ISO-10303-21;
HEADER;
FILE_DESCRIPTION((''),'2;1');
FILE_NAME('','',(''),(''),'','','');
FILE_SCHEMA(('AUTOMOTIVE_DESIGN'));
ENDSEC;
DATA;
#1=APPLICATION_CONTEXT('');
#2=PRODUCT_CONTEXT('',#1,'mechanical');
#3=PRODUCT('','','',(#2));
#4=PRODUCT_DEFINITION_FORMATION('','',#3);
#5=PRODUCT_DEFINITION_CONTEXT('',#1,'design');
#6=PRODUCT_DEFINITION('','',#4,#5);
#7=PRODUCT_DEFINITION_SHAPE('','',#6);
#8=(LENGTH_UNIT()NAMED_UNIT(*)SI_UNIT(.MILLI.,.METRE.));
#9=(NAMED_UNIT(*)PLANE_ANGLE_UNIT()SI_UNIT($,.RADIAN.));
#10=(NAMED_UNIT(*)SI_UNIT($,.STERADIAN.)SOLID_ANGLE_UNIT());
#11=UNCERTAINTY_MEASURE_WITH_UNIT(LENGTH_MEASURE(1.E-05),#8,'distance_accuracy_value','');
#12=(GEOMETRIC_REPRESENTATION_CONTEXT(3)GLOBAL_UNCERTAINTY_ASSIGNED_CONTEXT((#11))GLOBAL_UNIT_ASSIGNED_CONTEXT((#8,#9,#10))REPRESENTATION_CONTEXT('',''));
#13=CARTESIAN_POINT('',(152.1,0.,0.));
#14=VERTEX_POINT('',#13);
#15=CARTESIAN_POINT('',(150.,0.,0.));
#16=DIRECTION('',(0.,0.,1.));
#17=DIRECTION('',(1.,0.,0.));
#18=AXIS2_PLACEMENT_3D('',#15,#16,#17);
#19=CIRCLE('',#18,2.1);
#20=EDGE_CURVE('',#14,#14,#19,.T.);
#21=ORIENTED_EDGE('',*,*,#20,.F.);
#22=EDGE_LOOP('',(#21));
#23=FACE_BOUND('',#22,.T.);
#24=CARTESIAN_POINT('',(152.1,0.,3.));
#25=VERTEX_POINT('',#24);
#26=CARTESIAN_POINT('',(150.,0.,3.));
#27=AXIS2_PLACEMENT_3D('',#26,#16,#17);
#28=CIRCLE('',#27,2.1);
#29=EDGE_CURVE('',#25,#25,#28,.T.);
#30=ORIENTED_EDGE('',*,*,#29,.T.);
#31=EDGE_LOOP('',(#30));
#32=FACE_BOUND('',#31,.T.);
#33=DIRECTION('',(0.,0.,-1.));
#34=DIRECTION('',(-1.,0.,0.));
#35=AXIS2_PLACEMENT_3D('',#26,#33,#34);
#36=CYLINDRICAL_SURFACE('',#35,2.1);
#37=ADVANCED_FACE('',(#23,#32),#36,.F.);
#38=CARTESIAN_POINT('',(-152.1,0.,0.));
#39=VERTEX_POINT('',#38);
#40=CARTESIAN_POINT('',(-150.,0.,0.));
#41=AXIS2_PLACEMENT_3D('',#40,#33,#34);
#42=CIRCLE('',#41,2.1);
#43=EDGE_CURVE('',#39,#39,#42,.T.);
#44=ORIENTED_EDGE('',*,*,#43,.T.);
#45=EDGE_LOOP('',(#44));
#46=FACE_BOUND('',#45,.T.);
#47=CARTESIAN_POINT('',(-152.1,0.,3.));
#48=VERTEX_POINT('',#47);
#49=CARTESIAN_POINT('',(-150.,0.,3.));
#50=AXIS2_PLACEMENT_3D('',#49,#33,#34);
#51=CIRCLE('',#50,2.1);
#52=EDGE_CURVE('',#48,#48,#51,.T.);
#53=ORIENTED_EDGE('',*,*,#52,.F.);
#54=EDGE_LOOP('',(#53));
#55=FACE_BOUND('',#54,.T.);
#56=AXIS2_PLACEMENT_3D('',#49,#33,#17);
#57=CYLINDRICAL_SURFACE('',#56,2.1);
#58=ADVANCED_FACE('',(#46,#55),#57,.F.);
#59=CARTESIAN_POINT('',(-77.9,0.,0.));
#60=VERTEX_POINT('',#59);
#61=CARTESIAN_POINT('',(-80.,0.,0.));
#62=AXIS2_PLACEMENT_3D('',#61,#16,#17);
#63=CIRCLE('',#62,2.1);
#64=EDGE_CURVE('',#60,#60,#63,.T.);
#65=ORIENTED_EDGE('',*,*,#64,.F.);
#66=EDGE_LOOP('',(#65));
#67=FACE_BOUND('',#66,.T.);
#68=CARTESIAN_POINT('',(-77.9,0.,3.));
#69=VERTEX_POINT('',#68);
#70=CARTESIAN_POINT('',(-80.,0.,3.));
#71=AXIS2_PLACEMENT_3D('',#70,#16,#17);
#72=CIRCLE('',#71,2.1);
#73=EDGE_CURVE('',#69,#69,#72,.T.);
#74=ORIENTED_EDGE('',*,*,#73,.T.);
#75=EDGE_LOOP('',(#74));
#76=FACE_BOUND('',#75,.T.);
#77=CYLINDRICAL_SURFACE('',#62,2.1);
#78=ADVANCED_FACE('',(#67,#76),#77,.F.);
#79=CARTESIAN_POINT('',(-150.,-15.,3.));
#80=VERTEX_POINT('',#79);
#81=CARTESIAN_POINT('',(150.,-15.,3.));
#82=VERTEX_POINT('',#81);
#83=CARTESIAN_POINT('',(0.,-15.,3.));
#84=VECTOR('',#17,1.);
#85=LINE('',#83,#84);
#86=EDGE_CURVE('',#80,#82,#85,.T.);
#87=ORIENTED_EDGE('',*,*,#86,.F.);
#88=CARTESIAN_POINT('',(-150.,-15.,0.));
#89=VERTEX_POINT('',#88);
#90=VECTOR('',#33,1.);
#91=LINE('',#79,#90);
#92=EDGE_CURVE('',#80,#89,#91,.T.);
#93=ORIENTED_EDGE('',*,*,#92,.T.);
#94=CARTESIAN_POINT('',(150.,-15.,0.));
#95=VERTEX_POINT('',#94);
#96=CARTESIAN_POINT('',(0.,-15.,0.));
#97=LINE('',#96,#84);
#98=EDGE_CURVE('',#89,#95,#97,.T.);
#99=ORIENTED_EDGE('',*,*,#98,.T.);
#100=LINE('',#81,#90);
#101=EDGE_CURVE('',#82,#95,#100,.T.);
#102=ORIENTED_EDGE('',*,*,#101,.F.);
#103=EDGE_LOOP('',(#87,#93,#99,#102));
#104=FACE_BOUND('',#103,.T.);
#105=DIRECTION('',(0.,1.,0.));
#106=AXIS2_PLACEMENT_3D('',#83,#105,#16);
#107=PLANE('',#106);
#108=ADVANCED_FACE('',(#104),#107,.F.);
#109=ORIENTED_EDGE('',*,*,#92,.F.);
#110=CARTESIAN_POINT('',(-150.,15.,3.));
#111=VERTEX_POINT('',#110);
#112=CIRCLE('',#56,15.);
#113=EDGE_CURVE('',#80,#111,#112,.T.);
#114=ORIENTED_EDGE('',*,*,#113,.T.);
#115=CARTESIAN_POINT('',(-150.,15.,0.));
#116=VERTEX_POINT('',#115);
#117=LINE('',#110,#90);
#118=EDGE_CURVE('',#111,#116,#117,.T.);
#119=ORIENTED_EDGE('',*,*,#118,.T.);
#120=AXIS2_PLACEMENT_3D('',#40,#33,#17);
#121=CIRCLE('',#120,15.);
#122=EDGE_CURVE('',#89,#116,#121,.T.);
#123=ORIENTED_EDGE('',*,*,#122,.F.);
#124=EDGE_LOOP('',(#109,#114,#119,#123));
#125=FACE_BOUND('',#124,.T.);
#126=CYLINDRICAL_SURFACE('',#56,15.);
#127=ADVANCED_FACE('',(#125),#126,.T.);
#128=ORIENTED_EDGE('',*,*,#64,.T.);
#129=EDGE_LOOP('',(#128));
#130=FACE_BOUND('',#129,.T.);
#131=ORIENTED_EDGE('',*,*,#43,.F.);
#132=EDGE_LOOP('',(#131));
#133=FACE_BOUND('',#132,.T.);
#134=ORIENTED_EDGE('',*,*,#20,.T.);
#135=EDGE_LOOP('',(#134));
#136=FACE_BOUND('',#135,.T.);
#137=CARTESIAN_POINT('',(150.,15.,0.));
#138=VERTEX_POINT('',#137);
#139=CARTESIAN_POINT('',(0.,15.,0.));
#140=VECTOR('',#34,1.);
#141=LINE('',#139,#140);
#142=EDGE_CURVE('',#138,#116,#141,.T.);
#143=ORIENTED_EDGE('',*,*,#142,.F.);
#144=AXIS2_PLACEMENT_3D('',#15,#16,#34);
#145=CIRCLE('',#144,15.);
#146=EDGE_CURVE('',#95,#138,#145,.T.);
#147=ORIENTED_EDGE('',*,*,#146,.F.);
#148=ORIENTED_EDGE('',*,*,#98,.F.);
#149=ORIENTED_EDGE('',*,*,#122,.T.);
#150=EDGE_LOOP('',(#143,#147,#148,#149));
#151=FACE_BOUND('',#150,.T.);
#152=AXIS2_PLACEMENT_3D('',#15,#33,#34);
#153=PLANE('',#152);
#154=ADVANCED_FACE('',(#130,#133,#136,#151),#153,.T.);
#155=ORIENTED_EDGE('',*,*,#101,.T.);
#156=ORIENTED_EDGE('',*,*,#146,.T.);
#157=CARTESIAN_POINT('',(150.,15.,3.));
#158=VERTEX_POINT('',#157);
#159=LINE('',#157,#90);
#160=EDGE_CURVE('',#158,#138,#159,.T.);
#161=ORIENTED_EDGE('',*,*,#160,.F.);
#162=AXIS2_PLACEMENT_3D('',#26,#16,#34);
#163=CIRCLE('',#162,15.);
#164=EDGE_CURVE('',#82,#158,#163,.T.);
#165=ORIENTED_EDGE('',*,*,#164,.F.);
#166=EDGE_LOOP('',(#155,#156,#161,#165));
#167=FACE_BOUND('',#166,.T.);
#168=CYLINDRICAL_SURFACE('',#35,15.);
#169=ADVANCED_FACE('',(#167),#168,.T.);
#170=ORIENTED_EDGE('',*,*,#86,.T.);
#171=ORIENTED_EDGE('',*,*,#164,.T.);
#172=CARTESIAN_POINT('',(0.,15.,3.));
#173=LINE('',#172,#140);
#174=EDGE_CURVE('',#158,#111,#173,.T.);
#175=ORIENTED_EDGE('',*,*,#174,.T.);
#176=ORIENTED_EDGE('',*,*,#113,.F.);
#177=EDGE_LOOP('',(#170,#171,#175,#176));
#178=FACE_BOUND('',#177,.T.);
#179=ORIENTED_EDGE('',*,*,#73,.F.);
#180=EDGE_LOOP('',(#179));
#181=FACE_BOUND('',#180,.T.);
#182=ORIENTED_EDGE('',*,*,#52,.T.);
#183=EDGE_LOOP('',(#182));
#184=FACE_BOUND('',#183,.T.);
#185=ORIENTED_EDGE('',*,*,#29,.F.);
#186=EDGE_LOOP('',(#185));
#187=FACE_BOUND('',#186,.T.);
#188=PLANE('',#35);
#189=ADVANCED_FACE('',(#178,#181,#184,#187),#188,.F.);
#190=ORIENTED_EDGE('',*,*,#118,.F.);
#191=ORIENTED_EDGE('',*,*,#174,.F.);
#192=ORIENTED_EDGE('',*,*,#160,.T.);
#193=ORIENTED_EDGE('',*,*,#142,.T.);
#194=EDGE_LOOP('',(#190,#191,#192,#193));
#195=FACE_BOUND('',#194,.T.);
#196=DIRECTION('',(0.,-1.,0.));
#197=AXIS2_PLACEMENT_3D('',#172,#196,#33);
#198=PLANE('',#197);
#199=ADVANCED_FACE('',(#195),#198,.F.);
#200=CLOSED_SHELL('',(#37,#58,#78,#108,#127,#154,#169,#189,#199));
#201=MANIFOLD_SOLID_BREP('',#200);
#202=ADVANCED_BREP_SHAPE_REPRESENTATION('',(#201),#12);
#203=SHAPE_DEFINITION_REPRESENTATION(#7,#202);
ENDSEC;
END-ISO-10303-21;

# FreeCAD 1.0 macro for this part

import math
import FreeCAD as App
import Part
import Sketcher

doc = App.newDocument("Part")
params = doc.addObject("Spreadsheet::Sheet", "Params")
for row, (alias, value) in enumerate([
    ("sketch1_radius", "15 mm"),
    ("sketch1_diameter", "4.2 mm"),
    ("sketch1_width", "150 mm"),
    ("pad1_length", "3 mm"),
    ("sketch2_diameter", "4.2 mm"),
], start=1):
    params.set(f"A{row}", alias)
    params.set(f"B{row}", "=" + value)
    params.setAlias(f"B{row}", alias)

body = doc.addObject("PartDesign::Body", "Body")

sketch1 = body.newObject("Sketcher::SketchObject", "Sketch")
sketch1.AttachmentSupport = (doc.getObject("XY_Plane"), [""])
sketch1.MapMode = "FlatFace"
sketch1.addGeometry([
    Part.LineSegment(App.Vector(150, 15, 0), App.Vector(0, 15, 0)),
    Part.LineSegment(App.Vector(0, 15, 0), App.Vector(0, -15, 0)),
    Part.LineSegment(App.Vector(0, -15, 0), App.Vector(150, -15, 0)),
    Part.ArcOfCircle(Part.Circle(App.Vector(150, 0, 0), App.Vector(0, 0, 1), 15), math.radians(-90), math.radians(90)),
    Part.Circle(App.Vector(150, 0, 0), App.Vector(0, 0, 1), 2.1),
], False)
sketch1.addConstraint([
    Sketcher.Constraint("Coincident", 0, 2, 1, 1),
    Sketcher.Constraint("Coincident", 1, 2, 2, 1),
    Sketcher.Constraint("Tangent", 2, 2, 3, 1),
    Sketcher.Constraint("Tangent", 3, 2, 0, 1),
    Sketcher.Constraint("Horizontal", 0),
    Sketcher.Constraint("Vertical", 1),
    Sketcher.Constraint("Horizontal", 2),
    Sketcher.Constraint("Coincident", 4, 3, 3, 3),
    Sketcher.Constraint("Symmetric", 0, 2, 1, 2, -1, 1),
    Sketcher.Constraint("Radius", 3, 15.0),
    Sketcher.Constraint("Diameter", 4, 4.2),
    Sketcher.Constraint("DistanceX", 0, 2, 0, 1, 150.0),
])
sketch1.setExpression("Constraints[9]", "Params.sketch1_radius")
sketch1.setExpression("Constraints[10]", "Params.sketch1_diameter")
sketch1.setExpression("Constraints[11]", "Params.sketch1_width")
pad1 = body.newObject("PartDesign::Pad", "Pad")
pad1.Profile = sketch1
pad1.setExpression("Length", "Params.pad1_length")
body2 = doc.addObject("PartDesign::Body", "Body001")
doc.recompute()

body2.BaseFeature = body
doc.recompute()

mirroring = doc.addObject("Part::Mirroring", "Mirroring")
mirroring.Source = body
mirroring.Base = App.Vector(0, 15, 3)
mirroring.Normal = App.Vector(1, 0, 0)
body3 = doc.addObject("PartDesign::Body", "Body002")
body3.BaseFeature = mirroring
boolean = body2.newObject("PartDesign::Boolean", "Boolean")
boolean.Type = "Fuse"
boolean.addObjects([body3])
doc.recompute()

sketch2 = body2.newObject("Sketcher::SketchObject", "Sketch001")
sketch2.AttachmentSupport = (doc.getObject("XY_Plane001"), [""])
sketch2.MapMode = "FlatFace"
sketch2.AttachmentOffset = App.Placement(App.Vector(0, 0, 3), App.Rotation())
sketch2.addGeometry(Part.Circle(App.Vector(-80, 0, 0), App.Vector(0, 0, 1), 2.1), False)
sketch2.addConstraint([
    Sketcher.Constraint("PointOnObject", 0, 3, -1),
    Sketcher.Constraint("Diameter", 0, 4.2),
    Sketcher.Constraint("DistanceX", 0, 3, -1, 1, 80.0),
])
sketch2.setExpression("Constraints[1]", "Params.sketch2_diameter")
pocket1 = body2.newObject("PartDesign::Pocket", "Pocket")
pocket1.Profile = sketch2
pocket1.Type = "ThroughAll"
mirroring.Visibility = False

doc.recompute()
